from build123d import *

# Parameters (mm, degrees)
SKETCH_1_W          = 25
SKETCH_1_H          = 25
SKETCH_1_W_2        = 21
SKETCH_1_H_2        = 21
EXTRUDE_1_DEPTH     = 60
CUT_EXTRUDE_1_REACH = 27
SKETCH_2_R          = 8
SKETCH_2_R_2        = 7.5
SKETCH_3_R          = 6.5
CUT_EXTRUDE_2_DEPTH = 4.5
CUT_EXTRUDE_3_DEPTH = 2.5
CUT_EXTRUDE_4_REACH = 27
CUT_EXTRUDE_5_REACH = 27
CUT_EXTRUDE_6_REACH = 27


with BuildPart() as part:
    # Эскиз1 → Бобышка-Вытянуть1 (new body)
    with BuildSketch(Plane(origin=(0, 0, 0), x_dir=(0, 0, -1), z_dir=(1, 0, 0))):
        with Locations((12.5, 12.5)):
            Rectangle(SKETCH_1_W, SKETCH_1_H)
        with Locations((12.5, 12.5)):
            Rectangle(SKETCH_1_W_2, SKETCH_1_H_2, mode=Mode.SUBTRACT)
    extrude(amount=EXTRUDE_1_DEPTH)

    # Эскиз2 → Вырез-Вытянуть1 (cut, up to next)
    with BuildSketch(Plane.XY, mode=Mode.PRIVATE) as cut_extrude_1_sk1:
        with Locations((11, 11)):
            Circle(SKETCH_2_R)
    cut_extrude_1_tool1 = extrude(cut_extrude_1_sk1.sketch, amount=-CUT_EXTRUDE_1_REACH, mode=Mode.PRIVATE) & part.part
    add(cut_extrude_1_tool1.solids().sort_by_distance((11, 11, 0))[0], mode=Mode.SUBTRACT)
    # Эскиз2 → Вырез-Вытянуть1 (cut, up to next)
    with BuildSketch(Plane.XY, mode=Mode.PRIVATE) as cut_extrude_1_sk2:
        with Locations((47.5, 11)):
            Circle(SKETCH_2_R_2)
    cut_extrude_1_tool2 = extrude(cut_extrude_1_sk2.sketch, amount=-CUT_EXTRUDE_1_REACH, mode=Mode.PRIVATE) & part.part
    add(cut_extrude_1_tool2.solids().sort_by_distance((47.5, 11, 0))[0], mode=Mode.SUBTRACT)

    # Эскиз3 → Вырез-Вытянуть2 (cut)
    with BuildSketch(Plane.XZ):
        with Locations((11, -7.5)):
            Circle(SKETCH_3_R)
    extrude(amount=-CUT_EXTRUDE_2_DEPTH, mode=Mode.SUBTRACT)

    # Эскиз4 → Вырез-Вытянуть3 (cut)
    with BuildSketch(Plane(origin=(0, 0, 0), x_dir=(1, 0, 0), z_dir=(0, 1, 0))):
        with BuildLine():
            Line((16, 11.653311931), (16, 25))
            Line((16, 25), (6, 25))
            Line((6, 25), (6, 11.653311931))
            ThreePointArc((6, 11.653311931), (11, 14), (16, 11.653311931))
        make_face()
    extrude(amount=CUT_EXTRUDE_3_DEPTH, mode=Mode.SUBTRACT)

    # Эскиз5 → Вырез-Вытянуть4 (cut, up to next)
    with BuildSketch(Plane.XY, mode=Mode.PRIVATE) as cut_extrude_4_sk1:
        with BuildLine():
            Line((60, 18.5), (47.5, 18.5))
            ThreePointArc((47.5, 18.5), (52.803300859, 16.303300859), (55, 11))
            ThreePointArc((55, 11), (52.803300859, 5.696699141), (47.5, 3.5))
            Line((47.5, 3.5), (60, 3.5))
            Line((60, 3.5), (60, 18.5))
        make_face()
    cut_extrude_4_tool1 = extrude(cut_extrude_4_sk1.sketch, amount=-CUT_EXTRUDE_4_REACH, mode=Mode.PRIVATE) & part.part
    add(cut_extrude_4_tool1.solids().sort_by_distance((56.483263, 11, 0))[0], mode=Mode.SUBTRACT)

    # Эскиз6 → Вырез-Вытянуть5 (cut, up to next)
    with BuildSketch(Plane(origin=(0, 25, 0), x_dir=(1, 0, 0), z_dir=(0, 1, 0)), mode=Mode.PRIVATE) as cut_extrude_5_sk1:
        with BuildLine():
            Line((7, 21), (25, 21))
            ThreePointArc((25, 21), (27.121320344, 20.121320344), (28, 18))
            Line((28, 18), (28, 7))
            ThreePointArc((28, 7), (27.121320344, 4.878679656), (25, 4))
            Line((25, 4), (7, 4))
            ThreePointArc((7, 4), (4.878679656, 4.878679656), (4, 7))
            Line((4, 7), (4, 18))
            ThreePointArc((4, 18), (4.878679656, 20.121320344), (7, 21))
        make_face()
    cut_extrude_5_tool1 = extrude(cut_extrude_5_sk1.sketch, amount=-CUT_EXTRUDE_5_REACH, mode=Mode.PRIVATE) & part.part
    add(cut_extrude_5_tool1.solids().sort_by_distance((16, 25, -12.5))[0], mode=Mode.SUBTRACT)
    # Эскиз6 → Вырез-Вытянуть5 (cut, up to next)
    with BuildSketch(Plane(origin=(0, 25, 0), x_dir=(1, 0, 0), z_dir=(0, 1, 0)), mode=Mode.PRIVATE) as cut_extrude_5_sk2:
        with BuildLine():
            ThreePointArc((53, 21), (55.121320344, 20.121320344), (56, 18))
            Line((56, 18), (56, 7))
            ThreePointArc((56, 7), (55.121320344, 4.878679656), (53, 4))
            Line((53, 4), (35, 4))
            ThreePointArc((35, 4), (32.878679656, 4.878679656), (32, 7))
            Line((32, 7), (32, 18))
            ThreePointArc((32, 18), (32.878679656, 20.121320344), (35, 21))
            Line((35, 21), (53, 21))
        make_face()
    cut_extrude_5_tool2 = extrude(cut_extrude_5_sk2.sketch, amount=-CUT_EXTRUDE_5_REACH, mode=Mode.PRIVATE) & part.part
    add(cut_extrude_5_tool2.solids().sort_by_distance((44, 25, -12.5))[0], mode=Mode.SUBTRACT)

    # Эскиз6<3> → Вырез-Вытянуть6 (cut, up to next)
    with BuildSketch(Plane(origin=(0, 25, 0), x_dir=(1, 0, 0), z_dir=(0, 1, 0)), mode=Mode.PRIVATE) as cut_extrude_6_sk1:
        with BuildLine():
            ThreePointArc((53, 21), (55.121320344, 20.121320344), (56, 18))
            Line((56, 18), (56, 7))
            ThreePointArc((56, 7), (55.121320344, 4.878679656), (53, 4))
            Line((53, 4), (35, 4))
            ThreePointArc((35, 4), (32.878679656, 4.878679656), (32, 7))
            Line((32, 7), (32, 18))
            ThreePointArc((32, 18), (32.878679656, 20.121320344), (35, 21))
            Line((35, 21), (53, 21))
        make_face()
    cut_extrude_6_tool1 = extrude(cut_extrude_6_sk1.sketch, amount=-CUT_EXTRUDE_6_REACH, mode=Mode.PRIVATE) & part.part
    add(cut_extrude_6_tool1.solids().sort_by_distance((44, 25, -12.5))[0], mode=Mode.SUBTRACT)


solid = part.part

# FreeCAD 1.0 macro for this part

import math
import FreeCAD as App
import Part
import Sketcher
from FreeCAD import Vector
Q = App.Units.Quantity

doc = App.newDocument("Part")
body = doc.addObject("PartDesign::Body", "Body")

sketch1 = doc.addObject("Sketcher::SketchObject", "Sketch")
body.addObject(sketch1)
sketch1.AttachmentSupport = (doc.YZ_Plane, [""])
sketch1.MapMode = "FlatFace"
sketch1.addGeometry([
    Part.LineSegment(Vector(25, 0, 0), Vector(0, 0, 0)),
    Part.LineSegment(Vector(0, 0, 0), Vector(0, -25, 0)),
    Part.LineSegment(Vector(0, -25, 0), Vector(25, -25, 0)),
    Part.LineSegment(Vector(25, -25, 0), Vector(25, 0, 0)),
    Part.LineSegment(Vector(2, -23, 0), Vector(2, -2, 0)),
    Part.LineSegment(Vector(2, -2, 0), Vector(23, -2, 0)),
    Part.LineSegment(Vector(23, -2, 0), Vector(23, -23, 0)),
    Part.LineSegment(Vector(23, -23, 0), Vector(2, -23, 0)),
], False)
sketch1.addConstraint([
    Sketcher.Constraint("Coincident", 0, 2, 1, 1),
    Sketcher.Constraint("Coincident", 1, 2, 2, 1),
    Sketcher.Constraint("Coincident", 2, 2, 3, 1),
    Sketcher.Constraint("Coincident", 3, 2, 0, 1),
    Sketcher.Constraint("Coincident", 4, 2, 5, 1),
    Sketcher.Constraint("Coincident", 5, 2, 6, 1),
    Sketcher.Constraint("Coincident", 6, 2, 7, 1),
    Sketcher.Constraint("Coincident", 7, 2, 4, 1),
    Sketcher.Constraint("Horizontal", 0),
    Sketcher.Constraint("Vertical", 1),
    Sketcher.Constraint("Horizontal", 2),
    Sketcher.Constraint("Vertical", 3),
    Sketcher.Constraint("Vertical", 4),
    Sketcher.Constraint("Horizontal", 5),
    Sketcher.Constraint("Vertical", 6),
    Sketcher.Constraint("Horizontal", 7),
    Sketcher.Constraint("Coincident", 0, 2, -1, 1),
    Sketcher.Constraint("Equal", 2, 1),
    Sketcher.Constraint("Equal", 7, 4),
    Sketcher.Constraint("DistanceX", 0, 2, 0, 1, Q("25 mm")),
    Sketcher.Constraint("DistanceX", 5, 1, 5, 2, Q("21 mm")),
    Sketcher.Constraint("DistanceX", -1, 1, 4, 2, Q("2 mm")),
    Sketcher.Constraint("DistanceY", 4, 2, -1, 1, Q("2 mm")),
])
pad1 = doc.addObject("PartDesign::Pad", "Pad")
body.addObject(pad1)
pad1.Profile = sketch1
pad1.Length = 60

sketch2 = doc.addObject("Sketcher::SketchObject", "Sketch001")
body.addObject(sketch2)
sketch2.AttachmentSupport = (doc.XY_Plane, [""])
sketch2.MapMode = "FlatFace"
sketch2.addGeometry(Part.Circle(Vector(11, 11, 0), Vector(0, 0, 1), 8), False)
sketch2.addConstraint([
    Sketcher.Constraint("Diameter", 0, Q("16 mm")),
    Sketcher.Constraint("DistanceX", -1, 1, 0, 3, Q("11 mm")),
    Sketcher.Constraint("DistanceY", -1, 1, 0, 3, Q("11 mm")),
])
pocket1 = doc.addObject("PartDesign::Pocket", "Pocket")
body.addObject(pocket1)
pocket1.Profile = sketch2
pocket1.Type = "UpToFirst"

sketch3 = doc.addObject("Sketcher::SketchObject", "Sketch002")
body.addObject(sketch3)
sketch3.AttachmentSupport = (doc.XY_Plane, [""])
sketch3.MapMode = "FlatFace"
sketch3.addGeometry(Part.Circle(Vector(47.5, 11, 0), Vector(0, 0, 1), 7.5), False)
sketch3.addConstraint([
    Sketcher.Constraint("Diameter", 0, Q("15 mm")),
    Sketcher.Constraint("DistanceY", -1, 1, 0, 3, Q("11 mm")),
    Sketcher.Constraint("DistanceX", -1, 1, 0, 3, Q("47.5 mm")),
])
pocket2 = doc.addObject("PartDesign::Pocket", "Pocket001")
body.addObject(pocket2)
pocket2.Profile = sketch3
pocket2.Type = "UpToFirst"

sketch4 = doc.addObject("Sketcher::SketchObject", "Sketch003")
body.addObject(sketch4)
sketch4.AttachmentSupport = (doc.XZ_Plane, [""])
sketch4.MapMode = "FlatFace"
sketch4.addGeometry(Part.Circle(Vector(11, -7.5, 0), Vector(0, 0, 1), 6.5), False)
sketch4.addConstraint([
    Sketcher.Constraint("Diameter", 0, Q("13 mm")),
    Sketcher.Constraint("DistanceX", -1, 1, 0, 3, Q("11 mm")),
    Sketcher.Constraint("DistanceY", 0, 3, -1, 1, Q("7.5 mm")),
])
pocket3 = doc.addObject("PartDesign::Pocket", "Pocket002")
body.addObject(pocket3)
pocket3.Profile = sketch4
pocket3.Length = 4.5

sketch5 = doc.addObject("Sketcher::SketchObject", "Sketch004")
body.addObject(sketch5)
sketch5.AttachmentSupport = (doc.XZ_Plane, [""])
sketch5.MapMode = "FlatFace"
sketch5.addGeometry([
    Part.LineSegment(Vector(16, -11.653312, 0), Vector(16, -25, 0)),
    Part.LineSegment(Vector(16, -25, 0), Vector(6, -25, 0)),
    Part.LineSegment(Vector(6, -25, 0), Vector(6, -11.653312, 0)),
    Part.ArcOfCircle(Part.Circle(Vector(11, -7.5, 0), Vector(0, 0, 1), 6.5), math.radians(-140.284863), math.radians(-39.715137)),
], False)
sketch5.addConstraint([
    Sketcher.Constraint("Coincident", 0, 2, 1, 1),
    Sketcher.Constraint("Coincident", 1, 2, 2, 1),
    Sketcher.Constraint("Coincident", 2, 2, 3, 1),
    Sketcher.Constraint("Coincident", 3, 2, 0, 1),
    Sketcher.Constraint("Vertical", 0),
    Sketcher.Constraint("Horizontal", 1),
    Sketcher.Constraint("Vertical", 2),
    Sketcher.Constraint("Horizontal", 2, 2, 3, 2),
    Sketcher.Constraint("Radius", 3, Q("6.5 mm")),
    Sketcher.Constraint("DistanceX", 1, 2, 1, 1, Q("10 mm")),
    Sketcher.Constraint("DistanceX", -1, 1, 3, 3, Q("11 mm")),
    Sketcher.Constraint("DistanceY", 0, 2, -1, 1, Q("25 mm")),
    Sketcher.Constraint("DistanceY", 3, 3, -1, 1, Q("7.5 mm")),
])
pocket4 = doc.addObject("PartDesign::Pocket", "Pocket003")
body.addObject(pocket4)
pocket4.Profile = sketch5
pocket4.Length = 2.5

sketch6 = doc.addObject("Sketcher::SketchObject", "Sketch005")
body.addObject(sketch6)
sketch6.AttachmentSupport = (doc.XY_Plane, [""])
sketch6.MapMode = "FlatFace"
sketch6.addGeometry([
    Part.LineSegment(Vector(60, 18.5, 0), Vector(47.5, 18.5, 0)),
    Part.ArcOfCircle(Part.Circle(Vector(47.5, 11, 0), Vector(0, 0, 1), 7.5), math.radians(0), math.radians(90)),
    Part.ArcOfCircle(Part.Circle(Vector(47.5, 11, 0), Vector(0, 0, 1), 7.5), math.radians(-90), math.radians(0)),
    Part.LineSegment(Vector(47.5, 3.5, 0), Vector(60, 3.5, 0)),
    Part.LineSegment(Vector(60, 3.5, 0), Vector(60, 18.5, 0)),
], False)
sketch6.addConstraint([
    Sketcher.Constraint("Tangent", 0, 2, 1, 2),
    Sketcher.Constraint("Tangent", 1, 1, 2, 2),
    Sketcher.Constraint("Tangent", 2, 1, 3, 1),
    Sketcher.Constraint("Coincident", 3, 2, 4, 1),
    Sketcher.Constraint("Coincident", 4, 2, 0, 1),
    Sketcher.Constraint("Horizontal", 0),
    Sketcher.Constraint("Horizontal", 3),
    Sketcher.Constraint("Vertical", 4),
    Sketcher.Constraint("Equal", 1, 2),
    Sketcher.Constraint("Horizontal", 2, 3, 1, 1),
    Sketcher.Constraint("Radius", 1, Q("7.5 mm")),
    Sketcher.Constraint("DistanceX", 0, 2, 0, 1, Q("12.5 mm")),
    Sketcher.Constraint("DistanceY", -1, 1, 1, 3, Q("11 mm")),
    Sketcher.Constraint("DistanceX", -1, 1, 1, 1, Q("55 mm")),
])
pocket5 = doc.addObject("PartDesign::Pocket", "Pocket004")
body.addObject(pocket5)
pocket5.Profile = sketch6
pocket5.Type = "UpToFirst"

sketch7 = doc.addObject("Sketcher::SketchObject", "Sketch006")
body.addObject(sketch7)
sketch7.AttachmentSupport = (doc.XZ_Plane, [""])
sketch7.MapMode = "FlatFace"
sketch7.AttachmentOffset = App.Placement(Vector(0, 0, -25), App.Rotation())
sketch7.addGeometry([
    Part.LineSegment(Vector(25, -21, 0), Vector(7, -21, 0)),
    Part.ArcOfCircle(Part.Circle(Vector(7, -18, 0), Vector(0, 0, 1), 3), math.radians(180), math.radians(270)),
    Part.LineSegment(Vector(4, -18, 0), Vector(4, -7, 0)),
    Part.ArcOfCircle(Part.Circle(Vector(7, -7, 0), Vector(0, 0, 1), 3), math.radians(90), math.radians(180)),
    Part.LineSegment(Vector(7, -4, 0), Vector(25, -4, 0)),
    Part.ArcOfCircle(Part.Circle(Vector(25, -7, 0), Vector(0, 0, 1), 3), math.radians(0), math.radians(90)),
    Part.LineSegment(Vector(28, -7, 0), Vector(28, -18, 0)),
    Part.ArcOfCircle(Part.Circle(Vector(25, -18, 0), Vector(0, 0, 1), 3), math.radians(-90), math.radians(0)),
], False)
sketch7.addConstraint([
    Sketcher.Constraint("Tangent", 0, 2, 1, 2),
    Sketcher.Constraint("Tangent", 1, 1, 2, 1),
    Sketcher.Constraint("Tangent", 2, 2, 3, 2),
    Sketcher.Constraint("Tangent", 3, 1, 4, 1),
    Sketcher.Constraint("Tangent", 4, 2, 5, 2),
    Sketcher.Constraint("Tangent", 5, 1, 6, 1),
    Sketcher.Constraint("Tangent", 6, 2, 7, 2),
    Sketcher.Constraint("Tangent", 7, 1, 0, 1),
    Sketcher.Constraint("Horizontal", 0),
    Sketcher.Constraint("Vertical", 2),
    Sketcher.Constraint("Horizontal", 4),
    Sketcher.Constraint("Vertical", 6),
    Sketcher.Constraint("Equal", 1, 3),
    Sketcher.Constraint("Equal", 3, 5),
    Sketcher.Constraint("Equal", 5, 7),
    Sketcher.Constraint("Radius", 1, Q("3 mm")),
    Sketcher.Constraint("DistanceX", 0, 2, 0, 1, Q("18 mm")),
    Sketcher.Constraint("DistanceY", 2, 1, 2, 2, Q("11 mm")),
    Sketcher.Constraint("DistanceX", -1, 1, 1, 3, Q("7 mm")),
    Sketcher.Constraint("DistanceY", 1, 3, -1, 1, Q("18 mm")),
])
pocket6 = doc.addObject("PartDesign::Pocket", "Pocket005")
body.addObject(pocket6)
pocket6.Profile = sketch7
pocket6.Type = "UpToFirst"
pocket6.Reversed = True

sketch8 = doc.addObject("Sketcher::SketchObject", "Sketch007")
body.addObject(sketch8)
sketch8.AttachmentSupport = (doc.XZ_Plane, [""])
sketch8.MapMode = "FlatFace"
sketch8.AttachmentOffset = App.Placement(Vector(0, 0, -25), App.Rotation())
sketch8.addGeometry([
    Part.ArcOfCircle(Part.Circle(Vector(53, -18, 0), Vector(0, 0, 1), 3), math.radians(-90), math.radians(0)),
    Part.LineSegment(Vector(53, -21, 0), Vector(35, -21, 0)),
    Part.ArcOfCircle(Part.Circle(Vector(35, -18, 0), Vector(0, 0, 1), 3), math.radians(180), math.radians(270)),
    Part.LineSegment(Vector(32, -18, 0), Vector(32, -7, 0)),
    Part.ArcOfCircle(Part.Circle(Vector(35, -7, 0), Vector(0, 0, 1), 3), math.radians(90), math.radians(180)),
    Part.LineSegment(Vector(35, -4, 0), Vector(53, -4, 0)),
    Part.ArcOfCircle(Part.Circle(Vector(53, -7, 0), Vector(0, 0, 1), 3), math.radians(0), math.radians(90)),
    Part.LineSegment(Vector(56, -7, 0), Vector(56, -18, 0)),
], False)
sketch8.addConstraint([
    Sketcher.Constraint("Tangent", 0, 1, 1, 1),
    Sketcher.Constraint("Tangent", 1, 2, 2, 2),
    Sketcher.Constraint("Tangent", 2, 1, 3, 1),
    Sketcher.Constraint("Tangent", 3, 2, 4, 2),
    Sketcher.Constraint("Tangent", 4, 1, 5, 1),
    Sketcher.Constraint("Tangent", 5, 2, 6, 2),
    Sketcher.Constraint("Tangent", 6, 1, 7, 1),
    Sketcher.Constraint("Tangent", 7, 2, 0, 2),
    Sketcher.Constraint("Horizontal", 1),
    Sketcher.Constraint("Vertical", 3),
    Sketcher.Constraint("Horizontal", 5),
    Sketcher.Constraint("Vertical", 7),
    Sketcher.Constraint("Equal", 0, 2),
    Sketcher.Constraint("Equal", 2, 4),
    Sketcher.Constraint("Equal", 4, 6),
    Sketcher.Constraint("Radius", 0, Q("3 mm")),
    Sketcher.Constraint("DistanceX", 1, 2, 1, 1, Q("18 mm")),
    Sketcher.Constraint("DistanceY", 3, 1, 3, 2, Q("11 mm")),
    Sketcher.Constraint("DistanceX", -1, 1, 0, 3, Q("53 mm")),
    Sketcher.Constraint("DistanceY", 0, 3, -1, 1, Q("18 mm")),
])
pocket7 = doc.addObject("PartDesign::Pocket", "Pocket006")
body.addObject(pocket7)
pocket7.Profile = sketch8
pocket7.Type = "UpToFirst"
pocket7.Reversed = True

sketch9 = doc.addObject("Sketcher::SketchObject", "Sketch008")
body.addObject(sketch9)
sketch9.AttachmentSupport = (doc.XZ_Plane, [""])
sketch9.MapMode = "FlatFace"
sketch9.AttachmentOffset = App.Placement(Vector(0, 0, -25), App.Rotation())
sketch9.addGeometry([
    Part.ArcOfCircle(Part.Circle(Vector(53, -18, 0), Vector(0, 0, 1), 3), math.radians(-90), math.radians(0)),
    Part.LineSegment(Vector(53, -21, 0), Vector(35, -21, 0)),
    Part.ArcOfCircle(Part.Circle(Vector(35, -18, 0), Vector(0, 0, 1), 3), math.radians(180), math.radians(270)),
    Part.LineSegment(Vector(32, -18, 0), Vector(32, -7, 0)),
    Part.ArcOfCircle(Part.Circle(Vector(35, -7, 0), Vector(0, 0, 1), 3), math.radians(90), math.radians(180)),
    Part.LineSegment(Vector(35, -4, 0), Vector(53, -4, 0)),
    Part.ArcOfCircle(Part.Circle(Vector(53, -7, 0), Vector(0, 0, 1), 3), math.radians(0), math.radians(90)),
    Part.LineSegment(Vector(56, -7, 0), Vector(56, -18, 0)),
], False)
sketch9.addConstraint([
    Sketcher.Constraint("Tangent", 0, 1, 1, 1),
    Sketcher.Constraint("Tangent", 1, 2, 2, 2),
    Sketcher.Constraint("Tangent", 2, 1, 3, 1),
    Sketcher.Constraint("Tangent", 3, 2, 4, 2),
    Sketcher.Constraint("Tangent", 4, 1, 5, 1),
    Sketcher.Constraint("Tangent", 5, 2, 6, 2),
    Sketcher.Constraint("Tangent", 6, 1, 7, 1),
    Sketcher.Constraint("Tangent", 7, 2, 0, 2),
    Sketcher.Constraint("Horizontal", 1),
    Sketcher.Constraint("Vertical", 3),
    Sketcher.Constraint("Horizontal", 5),
    Sketcher.Constraint("Vertical", 7),
    Sketcher.Constraint("Equal", 0, 2),
    Sketcher.Constraint("Equal", 2, 4),
    Sketcher.Constraint("Equal", 4, 6),
    Sketcher.Constraint("Radius", 0, Q("3 mm")),
    Sketcher.Constraint("DistanceX", 1, 2, 1, 1, Q("18 mm")),
    Sketcher.Constraint("DistanceY", 3, 1, 3, 2, Q("11 mm")),
    Sketcher.Constraint("DistanceX", -1, 1, 0, 3, Q("53 mm")),
    Sketcher.Constraint("DistanceY", 0, 3, -1, 1, Q("18 mm")),
])
pocket8 = doc.addObject("PartDesign::Pocket", "Pocket007")
body.addObject(pocket8)
pocket8.Profile = sketch9
pocket8.Length = 25
pocket8.Reversed = True

doc.recompute()
